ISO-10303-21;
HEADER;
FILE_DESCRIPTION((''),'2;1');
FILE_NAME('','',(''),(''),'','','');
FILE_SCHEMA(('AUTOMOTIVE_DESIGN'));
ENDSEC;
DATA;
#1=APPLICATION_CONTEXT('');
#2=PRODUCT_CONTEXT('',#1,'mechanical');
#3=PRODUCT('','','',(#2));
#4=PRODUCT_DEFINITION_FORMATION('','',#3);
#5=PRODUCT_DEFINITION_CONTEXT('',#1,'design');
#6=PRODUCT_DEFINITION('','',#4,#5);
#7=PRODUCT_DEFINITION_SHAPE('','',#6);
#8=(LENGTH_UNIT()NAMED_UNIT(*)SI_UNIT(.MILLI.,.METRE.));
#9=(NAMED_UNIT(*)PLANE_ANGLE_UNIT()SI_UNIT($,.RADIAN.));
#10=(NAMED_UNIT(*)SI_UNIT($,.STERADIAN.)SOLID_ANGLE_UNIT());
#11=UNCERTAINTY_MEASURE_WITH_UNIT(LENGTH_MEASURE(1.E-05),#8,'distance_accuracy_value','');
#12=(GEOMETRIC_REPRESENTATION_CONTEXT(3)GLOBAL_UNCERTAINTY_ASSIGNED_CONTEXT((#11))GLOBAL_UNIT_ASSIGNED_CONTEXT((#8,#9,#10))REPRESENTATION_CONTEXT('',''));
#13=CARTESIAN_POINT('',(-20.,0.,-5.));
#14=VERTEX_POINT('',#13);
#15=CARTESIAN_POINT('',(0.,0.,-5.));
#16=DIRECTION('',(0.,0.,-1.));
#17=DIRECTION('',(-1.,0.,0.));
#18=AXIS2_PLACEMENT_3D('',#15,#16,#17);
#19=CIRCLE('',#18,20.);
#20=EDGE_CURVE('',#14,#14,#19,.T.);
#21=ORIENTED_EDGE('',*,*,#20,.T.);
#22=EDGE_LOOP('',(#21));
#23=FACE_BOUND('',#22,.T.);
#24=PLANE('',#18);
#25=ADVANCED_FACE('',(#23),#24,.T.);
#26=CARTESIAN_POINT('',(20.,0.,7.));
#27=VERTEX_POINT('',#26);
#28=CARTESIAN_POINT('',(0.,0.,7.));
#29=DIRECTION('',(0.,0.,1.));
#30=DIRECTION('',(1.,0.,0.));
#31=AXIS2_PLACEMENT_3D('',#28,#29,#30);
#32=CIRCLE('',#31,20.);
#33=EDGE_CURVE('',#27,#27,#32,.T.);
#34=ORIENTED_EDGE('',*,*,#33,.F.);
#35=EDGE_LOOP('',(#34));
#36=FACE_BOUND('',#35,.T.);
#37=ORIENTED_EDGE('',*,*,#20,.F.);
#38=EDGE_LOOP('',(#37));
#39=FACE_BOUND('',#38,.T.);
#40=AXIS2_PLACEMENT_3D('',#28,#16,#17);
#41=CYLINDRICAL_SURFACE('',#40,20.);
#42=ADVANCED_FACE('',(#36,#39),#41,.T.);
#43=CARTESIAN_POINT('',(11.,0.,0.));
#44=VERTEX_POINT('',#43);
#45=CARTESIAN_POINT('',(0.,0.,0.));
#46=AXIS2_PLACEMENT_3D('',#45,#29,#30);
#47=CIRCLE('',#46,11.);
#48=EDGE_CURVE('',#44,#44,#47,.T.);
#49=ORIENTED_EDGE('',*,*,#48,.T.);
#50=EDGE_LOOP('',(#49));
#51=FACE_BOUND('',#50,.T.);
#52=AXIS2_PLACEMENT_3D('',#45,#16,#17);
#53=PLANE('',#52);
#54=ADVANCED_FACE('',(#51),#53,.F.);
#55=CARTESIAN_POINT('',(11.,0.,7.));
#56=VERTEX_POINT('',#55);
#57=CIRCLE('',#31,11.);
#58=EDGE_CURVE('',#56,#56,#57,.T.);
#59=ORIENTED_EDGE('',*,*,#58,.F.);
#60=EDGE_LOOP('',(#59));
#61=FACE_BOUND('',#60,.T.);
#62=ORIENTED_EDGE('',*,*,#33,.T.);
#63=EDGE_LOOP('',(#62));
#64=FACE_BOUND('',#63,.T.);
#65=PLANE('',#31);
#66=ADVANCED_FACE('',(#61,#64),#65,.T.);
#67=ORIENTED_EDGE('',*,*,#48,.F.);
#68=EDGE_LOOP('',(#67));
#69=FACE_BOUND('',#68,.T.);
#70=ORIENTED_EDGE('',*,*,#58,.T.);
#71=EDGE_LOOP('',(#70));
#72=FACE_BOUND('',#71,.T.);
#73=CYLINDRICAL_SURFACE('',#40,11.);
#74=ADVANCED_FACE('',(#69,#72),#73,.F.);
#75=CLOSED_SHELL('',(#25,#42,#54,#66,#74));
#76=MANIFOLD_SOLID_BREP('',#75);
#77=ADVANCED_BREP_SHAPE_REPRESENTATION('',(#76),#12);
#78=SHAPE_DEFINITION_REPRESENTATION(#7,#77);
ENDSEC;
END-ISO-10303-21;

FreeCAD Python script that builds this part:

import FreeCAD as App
import Part
import Sketcher
Q = App.Units.Quantity

doc = App.newDocument("Part")
body = doc.addObject("PartDesign::Body", "Body")

sketch1 = body.newObject("Sketcher::SketchObject", "Sketch")
sketch1.AttachmentSupport = (doc.getObject("XY_Plane"), [""])
sketch1.MapMode = "FlatFace"
sketch1.addGeometry(Part.Circle(App.Vector(0, 0, 0), App.Vector(0, 0, 1), 20), False)
sketch1.addGeometry(Part.Circle(App.Vector(0, 0, 0), App.Vector(0, 0, 1), 11), False)
sketch1.addConstraint(Sketcher.Constraint("Coincident", 0, 3, -1, 1))
sketch1.addConstraint(Sketcher.Constraint("Coincident", 1, 3, -1, 1))
sketch1.addConstraint(Sketcher.Constraint("Diameter", 0, Q("40 mm")))
sketch1.addConstraint(Sketcher.Constraint("Diameter", 1, Q("22 mm")))
pad1 = body.newObject("PartDesign::Pad", "Pad")
pad1.Profile = sketch1
pad1.Length = 7

sketch2 = body.newObject("Sketcher::SketchObject", "Sketch001")
sketch2.AttachmentSupport = (doc.getObject("XY_Plane"), [""])
sketch2.MapMode = "FlatFace"
sketch2.AttachmentOffset = App.Placement(App.Vector(0, 0, -5), App.Rotation())
sketch2.addGeometry(Part.Circle(App.Vector(0, 0, 0), App.Vector(0, 0, 1), 20), False)
sketch2.addConstraint(Sketcher.Constraint("Coincident", 0, 3, -1, 1))
sketch2.addConstraint(Sketcher.Constraint("Diameter", 0, Q("40 mm")))
pad2 = body.newObject("PartDesign::Pad", "Pad001")
pad2.Profile = sketch2
pad2.Length = 5

doc.recompute()
